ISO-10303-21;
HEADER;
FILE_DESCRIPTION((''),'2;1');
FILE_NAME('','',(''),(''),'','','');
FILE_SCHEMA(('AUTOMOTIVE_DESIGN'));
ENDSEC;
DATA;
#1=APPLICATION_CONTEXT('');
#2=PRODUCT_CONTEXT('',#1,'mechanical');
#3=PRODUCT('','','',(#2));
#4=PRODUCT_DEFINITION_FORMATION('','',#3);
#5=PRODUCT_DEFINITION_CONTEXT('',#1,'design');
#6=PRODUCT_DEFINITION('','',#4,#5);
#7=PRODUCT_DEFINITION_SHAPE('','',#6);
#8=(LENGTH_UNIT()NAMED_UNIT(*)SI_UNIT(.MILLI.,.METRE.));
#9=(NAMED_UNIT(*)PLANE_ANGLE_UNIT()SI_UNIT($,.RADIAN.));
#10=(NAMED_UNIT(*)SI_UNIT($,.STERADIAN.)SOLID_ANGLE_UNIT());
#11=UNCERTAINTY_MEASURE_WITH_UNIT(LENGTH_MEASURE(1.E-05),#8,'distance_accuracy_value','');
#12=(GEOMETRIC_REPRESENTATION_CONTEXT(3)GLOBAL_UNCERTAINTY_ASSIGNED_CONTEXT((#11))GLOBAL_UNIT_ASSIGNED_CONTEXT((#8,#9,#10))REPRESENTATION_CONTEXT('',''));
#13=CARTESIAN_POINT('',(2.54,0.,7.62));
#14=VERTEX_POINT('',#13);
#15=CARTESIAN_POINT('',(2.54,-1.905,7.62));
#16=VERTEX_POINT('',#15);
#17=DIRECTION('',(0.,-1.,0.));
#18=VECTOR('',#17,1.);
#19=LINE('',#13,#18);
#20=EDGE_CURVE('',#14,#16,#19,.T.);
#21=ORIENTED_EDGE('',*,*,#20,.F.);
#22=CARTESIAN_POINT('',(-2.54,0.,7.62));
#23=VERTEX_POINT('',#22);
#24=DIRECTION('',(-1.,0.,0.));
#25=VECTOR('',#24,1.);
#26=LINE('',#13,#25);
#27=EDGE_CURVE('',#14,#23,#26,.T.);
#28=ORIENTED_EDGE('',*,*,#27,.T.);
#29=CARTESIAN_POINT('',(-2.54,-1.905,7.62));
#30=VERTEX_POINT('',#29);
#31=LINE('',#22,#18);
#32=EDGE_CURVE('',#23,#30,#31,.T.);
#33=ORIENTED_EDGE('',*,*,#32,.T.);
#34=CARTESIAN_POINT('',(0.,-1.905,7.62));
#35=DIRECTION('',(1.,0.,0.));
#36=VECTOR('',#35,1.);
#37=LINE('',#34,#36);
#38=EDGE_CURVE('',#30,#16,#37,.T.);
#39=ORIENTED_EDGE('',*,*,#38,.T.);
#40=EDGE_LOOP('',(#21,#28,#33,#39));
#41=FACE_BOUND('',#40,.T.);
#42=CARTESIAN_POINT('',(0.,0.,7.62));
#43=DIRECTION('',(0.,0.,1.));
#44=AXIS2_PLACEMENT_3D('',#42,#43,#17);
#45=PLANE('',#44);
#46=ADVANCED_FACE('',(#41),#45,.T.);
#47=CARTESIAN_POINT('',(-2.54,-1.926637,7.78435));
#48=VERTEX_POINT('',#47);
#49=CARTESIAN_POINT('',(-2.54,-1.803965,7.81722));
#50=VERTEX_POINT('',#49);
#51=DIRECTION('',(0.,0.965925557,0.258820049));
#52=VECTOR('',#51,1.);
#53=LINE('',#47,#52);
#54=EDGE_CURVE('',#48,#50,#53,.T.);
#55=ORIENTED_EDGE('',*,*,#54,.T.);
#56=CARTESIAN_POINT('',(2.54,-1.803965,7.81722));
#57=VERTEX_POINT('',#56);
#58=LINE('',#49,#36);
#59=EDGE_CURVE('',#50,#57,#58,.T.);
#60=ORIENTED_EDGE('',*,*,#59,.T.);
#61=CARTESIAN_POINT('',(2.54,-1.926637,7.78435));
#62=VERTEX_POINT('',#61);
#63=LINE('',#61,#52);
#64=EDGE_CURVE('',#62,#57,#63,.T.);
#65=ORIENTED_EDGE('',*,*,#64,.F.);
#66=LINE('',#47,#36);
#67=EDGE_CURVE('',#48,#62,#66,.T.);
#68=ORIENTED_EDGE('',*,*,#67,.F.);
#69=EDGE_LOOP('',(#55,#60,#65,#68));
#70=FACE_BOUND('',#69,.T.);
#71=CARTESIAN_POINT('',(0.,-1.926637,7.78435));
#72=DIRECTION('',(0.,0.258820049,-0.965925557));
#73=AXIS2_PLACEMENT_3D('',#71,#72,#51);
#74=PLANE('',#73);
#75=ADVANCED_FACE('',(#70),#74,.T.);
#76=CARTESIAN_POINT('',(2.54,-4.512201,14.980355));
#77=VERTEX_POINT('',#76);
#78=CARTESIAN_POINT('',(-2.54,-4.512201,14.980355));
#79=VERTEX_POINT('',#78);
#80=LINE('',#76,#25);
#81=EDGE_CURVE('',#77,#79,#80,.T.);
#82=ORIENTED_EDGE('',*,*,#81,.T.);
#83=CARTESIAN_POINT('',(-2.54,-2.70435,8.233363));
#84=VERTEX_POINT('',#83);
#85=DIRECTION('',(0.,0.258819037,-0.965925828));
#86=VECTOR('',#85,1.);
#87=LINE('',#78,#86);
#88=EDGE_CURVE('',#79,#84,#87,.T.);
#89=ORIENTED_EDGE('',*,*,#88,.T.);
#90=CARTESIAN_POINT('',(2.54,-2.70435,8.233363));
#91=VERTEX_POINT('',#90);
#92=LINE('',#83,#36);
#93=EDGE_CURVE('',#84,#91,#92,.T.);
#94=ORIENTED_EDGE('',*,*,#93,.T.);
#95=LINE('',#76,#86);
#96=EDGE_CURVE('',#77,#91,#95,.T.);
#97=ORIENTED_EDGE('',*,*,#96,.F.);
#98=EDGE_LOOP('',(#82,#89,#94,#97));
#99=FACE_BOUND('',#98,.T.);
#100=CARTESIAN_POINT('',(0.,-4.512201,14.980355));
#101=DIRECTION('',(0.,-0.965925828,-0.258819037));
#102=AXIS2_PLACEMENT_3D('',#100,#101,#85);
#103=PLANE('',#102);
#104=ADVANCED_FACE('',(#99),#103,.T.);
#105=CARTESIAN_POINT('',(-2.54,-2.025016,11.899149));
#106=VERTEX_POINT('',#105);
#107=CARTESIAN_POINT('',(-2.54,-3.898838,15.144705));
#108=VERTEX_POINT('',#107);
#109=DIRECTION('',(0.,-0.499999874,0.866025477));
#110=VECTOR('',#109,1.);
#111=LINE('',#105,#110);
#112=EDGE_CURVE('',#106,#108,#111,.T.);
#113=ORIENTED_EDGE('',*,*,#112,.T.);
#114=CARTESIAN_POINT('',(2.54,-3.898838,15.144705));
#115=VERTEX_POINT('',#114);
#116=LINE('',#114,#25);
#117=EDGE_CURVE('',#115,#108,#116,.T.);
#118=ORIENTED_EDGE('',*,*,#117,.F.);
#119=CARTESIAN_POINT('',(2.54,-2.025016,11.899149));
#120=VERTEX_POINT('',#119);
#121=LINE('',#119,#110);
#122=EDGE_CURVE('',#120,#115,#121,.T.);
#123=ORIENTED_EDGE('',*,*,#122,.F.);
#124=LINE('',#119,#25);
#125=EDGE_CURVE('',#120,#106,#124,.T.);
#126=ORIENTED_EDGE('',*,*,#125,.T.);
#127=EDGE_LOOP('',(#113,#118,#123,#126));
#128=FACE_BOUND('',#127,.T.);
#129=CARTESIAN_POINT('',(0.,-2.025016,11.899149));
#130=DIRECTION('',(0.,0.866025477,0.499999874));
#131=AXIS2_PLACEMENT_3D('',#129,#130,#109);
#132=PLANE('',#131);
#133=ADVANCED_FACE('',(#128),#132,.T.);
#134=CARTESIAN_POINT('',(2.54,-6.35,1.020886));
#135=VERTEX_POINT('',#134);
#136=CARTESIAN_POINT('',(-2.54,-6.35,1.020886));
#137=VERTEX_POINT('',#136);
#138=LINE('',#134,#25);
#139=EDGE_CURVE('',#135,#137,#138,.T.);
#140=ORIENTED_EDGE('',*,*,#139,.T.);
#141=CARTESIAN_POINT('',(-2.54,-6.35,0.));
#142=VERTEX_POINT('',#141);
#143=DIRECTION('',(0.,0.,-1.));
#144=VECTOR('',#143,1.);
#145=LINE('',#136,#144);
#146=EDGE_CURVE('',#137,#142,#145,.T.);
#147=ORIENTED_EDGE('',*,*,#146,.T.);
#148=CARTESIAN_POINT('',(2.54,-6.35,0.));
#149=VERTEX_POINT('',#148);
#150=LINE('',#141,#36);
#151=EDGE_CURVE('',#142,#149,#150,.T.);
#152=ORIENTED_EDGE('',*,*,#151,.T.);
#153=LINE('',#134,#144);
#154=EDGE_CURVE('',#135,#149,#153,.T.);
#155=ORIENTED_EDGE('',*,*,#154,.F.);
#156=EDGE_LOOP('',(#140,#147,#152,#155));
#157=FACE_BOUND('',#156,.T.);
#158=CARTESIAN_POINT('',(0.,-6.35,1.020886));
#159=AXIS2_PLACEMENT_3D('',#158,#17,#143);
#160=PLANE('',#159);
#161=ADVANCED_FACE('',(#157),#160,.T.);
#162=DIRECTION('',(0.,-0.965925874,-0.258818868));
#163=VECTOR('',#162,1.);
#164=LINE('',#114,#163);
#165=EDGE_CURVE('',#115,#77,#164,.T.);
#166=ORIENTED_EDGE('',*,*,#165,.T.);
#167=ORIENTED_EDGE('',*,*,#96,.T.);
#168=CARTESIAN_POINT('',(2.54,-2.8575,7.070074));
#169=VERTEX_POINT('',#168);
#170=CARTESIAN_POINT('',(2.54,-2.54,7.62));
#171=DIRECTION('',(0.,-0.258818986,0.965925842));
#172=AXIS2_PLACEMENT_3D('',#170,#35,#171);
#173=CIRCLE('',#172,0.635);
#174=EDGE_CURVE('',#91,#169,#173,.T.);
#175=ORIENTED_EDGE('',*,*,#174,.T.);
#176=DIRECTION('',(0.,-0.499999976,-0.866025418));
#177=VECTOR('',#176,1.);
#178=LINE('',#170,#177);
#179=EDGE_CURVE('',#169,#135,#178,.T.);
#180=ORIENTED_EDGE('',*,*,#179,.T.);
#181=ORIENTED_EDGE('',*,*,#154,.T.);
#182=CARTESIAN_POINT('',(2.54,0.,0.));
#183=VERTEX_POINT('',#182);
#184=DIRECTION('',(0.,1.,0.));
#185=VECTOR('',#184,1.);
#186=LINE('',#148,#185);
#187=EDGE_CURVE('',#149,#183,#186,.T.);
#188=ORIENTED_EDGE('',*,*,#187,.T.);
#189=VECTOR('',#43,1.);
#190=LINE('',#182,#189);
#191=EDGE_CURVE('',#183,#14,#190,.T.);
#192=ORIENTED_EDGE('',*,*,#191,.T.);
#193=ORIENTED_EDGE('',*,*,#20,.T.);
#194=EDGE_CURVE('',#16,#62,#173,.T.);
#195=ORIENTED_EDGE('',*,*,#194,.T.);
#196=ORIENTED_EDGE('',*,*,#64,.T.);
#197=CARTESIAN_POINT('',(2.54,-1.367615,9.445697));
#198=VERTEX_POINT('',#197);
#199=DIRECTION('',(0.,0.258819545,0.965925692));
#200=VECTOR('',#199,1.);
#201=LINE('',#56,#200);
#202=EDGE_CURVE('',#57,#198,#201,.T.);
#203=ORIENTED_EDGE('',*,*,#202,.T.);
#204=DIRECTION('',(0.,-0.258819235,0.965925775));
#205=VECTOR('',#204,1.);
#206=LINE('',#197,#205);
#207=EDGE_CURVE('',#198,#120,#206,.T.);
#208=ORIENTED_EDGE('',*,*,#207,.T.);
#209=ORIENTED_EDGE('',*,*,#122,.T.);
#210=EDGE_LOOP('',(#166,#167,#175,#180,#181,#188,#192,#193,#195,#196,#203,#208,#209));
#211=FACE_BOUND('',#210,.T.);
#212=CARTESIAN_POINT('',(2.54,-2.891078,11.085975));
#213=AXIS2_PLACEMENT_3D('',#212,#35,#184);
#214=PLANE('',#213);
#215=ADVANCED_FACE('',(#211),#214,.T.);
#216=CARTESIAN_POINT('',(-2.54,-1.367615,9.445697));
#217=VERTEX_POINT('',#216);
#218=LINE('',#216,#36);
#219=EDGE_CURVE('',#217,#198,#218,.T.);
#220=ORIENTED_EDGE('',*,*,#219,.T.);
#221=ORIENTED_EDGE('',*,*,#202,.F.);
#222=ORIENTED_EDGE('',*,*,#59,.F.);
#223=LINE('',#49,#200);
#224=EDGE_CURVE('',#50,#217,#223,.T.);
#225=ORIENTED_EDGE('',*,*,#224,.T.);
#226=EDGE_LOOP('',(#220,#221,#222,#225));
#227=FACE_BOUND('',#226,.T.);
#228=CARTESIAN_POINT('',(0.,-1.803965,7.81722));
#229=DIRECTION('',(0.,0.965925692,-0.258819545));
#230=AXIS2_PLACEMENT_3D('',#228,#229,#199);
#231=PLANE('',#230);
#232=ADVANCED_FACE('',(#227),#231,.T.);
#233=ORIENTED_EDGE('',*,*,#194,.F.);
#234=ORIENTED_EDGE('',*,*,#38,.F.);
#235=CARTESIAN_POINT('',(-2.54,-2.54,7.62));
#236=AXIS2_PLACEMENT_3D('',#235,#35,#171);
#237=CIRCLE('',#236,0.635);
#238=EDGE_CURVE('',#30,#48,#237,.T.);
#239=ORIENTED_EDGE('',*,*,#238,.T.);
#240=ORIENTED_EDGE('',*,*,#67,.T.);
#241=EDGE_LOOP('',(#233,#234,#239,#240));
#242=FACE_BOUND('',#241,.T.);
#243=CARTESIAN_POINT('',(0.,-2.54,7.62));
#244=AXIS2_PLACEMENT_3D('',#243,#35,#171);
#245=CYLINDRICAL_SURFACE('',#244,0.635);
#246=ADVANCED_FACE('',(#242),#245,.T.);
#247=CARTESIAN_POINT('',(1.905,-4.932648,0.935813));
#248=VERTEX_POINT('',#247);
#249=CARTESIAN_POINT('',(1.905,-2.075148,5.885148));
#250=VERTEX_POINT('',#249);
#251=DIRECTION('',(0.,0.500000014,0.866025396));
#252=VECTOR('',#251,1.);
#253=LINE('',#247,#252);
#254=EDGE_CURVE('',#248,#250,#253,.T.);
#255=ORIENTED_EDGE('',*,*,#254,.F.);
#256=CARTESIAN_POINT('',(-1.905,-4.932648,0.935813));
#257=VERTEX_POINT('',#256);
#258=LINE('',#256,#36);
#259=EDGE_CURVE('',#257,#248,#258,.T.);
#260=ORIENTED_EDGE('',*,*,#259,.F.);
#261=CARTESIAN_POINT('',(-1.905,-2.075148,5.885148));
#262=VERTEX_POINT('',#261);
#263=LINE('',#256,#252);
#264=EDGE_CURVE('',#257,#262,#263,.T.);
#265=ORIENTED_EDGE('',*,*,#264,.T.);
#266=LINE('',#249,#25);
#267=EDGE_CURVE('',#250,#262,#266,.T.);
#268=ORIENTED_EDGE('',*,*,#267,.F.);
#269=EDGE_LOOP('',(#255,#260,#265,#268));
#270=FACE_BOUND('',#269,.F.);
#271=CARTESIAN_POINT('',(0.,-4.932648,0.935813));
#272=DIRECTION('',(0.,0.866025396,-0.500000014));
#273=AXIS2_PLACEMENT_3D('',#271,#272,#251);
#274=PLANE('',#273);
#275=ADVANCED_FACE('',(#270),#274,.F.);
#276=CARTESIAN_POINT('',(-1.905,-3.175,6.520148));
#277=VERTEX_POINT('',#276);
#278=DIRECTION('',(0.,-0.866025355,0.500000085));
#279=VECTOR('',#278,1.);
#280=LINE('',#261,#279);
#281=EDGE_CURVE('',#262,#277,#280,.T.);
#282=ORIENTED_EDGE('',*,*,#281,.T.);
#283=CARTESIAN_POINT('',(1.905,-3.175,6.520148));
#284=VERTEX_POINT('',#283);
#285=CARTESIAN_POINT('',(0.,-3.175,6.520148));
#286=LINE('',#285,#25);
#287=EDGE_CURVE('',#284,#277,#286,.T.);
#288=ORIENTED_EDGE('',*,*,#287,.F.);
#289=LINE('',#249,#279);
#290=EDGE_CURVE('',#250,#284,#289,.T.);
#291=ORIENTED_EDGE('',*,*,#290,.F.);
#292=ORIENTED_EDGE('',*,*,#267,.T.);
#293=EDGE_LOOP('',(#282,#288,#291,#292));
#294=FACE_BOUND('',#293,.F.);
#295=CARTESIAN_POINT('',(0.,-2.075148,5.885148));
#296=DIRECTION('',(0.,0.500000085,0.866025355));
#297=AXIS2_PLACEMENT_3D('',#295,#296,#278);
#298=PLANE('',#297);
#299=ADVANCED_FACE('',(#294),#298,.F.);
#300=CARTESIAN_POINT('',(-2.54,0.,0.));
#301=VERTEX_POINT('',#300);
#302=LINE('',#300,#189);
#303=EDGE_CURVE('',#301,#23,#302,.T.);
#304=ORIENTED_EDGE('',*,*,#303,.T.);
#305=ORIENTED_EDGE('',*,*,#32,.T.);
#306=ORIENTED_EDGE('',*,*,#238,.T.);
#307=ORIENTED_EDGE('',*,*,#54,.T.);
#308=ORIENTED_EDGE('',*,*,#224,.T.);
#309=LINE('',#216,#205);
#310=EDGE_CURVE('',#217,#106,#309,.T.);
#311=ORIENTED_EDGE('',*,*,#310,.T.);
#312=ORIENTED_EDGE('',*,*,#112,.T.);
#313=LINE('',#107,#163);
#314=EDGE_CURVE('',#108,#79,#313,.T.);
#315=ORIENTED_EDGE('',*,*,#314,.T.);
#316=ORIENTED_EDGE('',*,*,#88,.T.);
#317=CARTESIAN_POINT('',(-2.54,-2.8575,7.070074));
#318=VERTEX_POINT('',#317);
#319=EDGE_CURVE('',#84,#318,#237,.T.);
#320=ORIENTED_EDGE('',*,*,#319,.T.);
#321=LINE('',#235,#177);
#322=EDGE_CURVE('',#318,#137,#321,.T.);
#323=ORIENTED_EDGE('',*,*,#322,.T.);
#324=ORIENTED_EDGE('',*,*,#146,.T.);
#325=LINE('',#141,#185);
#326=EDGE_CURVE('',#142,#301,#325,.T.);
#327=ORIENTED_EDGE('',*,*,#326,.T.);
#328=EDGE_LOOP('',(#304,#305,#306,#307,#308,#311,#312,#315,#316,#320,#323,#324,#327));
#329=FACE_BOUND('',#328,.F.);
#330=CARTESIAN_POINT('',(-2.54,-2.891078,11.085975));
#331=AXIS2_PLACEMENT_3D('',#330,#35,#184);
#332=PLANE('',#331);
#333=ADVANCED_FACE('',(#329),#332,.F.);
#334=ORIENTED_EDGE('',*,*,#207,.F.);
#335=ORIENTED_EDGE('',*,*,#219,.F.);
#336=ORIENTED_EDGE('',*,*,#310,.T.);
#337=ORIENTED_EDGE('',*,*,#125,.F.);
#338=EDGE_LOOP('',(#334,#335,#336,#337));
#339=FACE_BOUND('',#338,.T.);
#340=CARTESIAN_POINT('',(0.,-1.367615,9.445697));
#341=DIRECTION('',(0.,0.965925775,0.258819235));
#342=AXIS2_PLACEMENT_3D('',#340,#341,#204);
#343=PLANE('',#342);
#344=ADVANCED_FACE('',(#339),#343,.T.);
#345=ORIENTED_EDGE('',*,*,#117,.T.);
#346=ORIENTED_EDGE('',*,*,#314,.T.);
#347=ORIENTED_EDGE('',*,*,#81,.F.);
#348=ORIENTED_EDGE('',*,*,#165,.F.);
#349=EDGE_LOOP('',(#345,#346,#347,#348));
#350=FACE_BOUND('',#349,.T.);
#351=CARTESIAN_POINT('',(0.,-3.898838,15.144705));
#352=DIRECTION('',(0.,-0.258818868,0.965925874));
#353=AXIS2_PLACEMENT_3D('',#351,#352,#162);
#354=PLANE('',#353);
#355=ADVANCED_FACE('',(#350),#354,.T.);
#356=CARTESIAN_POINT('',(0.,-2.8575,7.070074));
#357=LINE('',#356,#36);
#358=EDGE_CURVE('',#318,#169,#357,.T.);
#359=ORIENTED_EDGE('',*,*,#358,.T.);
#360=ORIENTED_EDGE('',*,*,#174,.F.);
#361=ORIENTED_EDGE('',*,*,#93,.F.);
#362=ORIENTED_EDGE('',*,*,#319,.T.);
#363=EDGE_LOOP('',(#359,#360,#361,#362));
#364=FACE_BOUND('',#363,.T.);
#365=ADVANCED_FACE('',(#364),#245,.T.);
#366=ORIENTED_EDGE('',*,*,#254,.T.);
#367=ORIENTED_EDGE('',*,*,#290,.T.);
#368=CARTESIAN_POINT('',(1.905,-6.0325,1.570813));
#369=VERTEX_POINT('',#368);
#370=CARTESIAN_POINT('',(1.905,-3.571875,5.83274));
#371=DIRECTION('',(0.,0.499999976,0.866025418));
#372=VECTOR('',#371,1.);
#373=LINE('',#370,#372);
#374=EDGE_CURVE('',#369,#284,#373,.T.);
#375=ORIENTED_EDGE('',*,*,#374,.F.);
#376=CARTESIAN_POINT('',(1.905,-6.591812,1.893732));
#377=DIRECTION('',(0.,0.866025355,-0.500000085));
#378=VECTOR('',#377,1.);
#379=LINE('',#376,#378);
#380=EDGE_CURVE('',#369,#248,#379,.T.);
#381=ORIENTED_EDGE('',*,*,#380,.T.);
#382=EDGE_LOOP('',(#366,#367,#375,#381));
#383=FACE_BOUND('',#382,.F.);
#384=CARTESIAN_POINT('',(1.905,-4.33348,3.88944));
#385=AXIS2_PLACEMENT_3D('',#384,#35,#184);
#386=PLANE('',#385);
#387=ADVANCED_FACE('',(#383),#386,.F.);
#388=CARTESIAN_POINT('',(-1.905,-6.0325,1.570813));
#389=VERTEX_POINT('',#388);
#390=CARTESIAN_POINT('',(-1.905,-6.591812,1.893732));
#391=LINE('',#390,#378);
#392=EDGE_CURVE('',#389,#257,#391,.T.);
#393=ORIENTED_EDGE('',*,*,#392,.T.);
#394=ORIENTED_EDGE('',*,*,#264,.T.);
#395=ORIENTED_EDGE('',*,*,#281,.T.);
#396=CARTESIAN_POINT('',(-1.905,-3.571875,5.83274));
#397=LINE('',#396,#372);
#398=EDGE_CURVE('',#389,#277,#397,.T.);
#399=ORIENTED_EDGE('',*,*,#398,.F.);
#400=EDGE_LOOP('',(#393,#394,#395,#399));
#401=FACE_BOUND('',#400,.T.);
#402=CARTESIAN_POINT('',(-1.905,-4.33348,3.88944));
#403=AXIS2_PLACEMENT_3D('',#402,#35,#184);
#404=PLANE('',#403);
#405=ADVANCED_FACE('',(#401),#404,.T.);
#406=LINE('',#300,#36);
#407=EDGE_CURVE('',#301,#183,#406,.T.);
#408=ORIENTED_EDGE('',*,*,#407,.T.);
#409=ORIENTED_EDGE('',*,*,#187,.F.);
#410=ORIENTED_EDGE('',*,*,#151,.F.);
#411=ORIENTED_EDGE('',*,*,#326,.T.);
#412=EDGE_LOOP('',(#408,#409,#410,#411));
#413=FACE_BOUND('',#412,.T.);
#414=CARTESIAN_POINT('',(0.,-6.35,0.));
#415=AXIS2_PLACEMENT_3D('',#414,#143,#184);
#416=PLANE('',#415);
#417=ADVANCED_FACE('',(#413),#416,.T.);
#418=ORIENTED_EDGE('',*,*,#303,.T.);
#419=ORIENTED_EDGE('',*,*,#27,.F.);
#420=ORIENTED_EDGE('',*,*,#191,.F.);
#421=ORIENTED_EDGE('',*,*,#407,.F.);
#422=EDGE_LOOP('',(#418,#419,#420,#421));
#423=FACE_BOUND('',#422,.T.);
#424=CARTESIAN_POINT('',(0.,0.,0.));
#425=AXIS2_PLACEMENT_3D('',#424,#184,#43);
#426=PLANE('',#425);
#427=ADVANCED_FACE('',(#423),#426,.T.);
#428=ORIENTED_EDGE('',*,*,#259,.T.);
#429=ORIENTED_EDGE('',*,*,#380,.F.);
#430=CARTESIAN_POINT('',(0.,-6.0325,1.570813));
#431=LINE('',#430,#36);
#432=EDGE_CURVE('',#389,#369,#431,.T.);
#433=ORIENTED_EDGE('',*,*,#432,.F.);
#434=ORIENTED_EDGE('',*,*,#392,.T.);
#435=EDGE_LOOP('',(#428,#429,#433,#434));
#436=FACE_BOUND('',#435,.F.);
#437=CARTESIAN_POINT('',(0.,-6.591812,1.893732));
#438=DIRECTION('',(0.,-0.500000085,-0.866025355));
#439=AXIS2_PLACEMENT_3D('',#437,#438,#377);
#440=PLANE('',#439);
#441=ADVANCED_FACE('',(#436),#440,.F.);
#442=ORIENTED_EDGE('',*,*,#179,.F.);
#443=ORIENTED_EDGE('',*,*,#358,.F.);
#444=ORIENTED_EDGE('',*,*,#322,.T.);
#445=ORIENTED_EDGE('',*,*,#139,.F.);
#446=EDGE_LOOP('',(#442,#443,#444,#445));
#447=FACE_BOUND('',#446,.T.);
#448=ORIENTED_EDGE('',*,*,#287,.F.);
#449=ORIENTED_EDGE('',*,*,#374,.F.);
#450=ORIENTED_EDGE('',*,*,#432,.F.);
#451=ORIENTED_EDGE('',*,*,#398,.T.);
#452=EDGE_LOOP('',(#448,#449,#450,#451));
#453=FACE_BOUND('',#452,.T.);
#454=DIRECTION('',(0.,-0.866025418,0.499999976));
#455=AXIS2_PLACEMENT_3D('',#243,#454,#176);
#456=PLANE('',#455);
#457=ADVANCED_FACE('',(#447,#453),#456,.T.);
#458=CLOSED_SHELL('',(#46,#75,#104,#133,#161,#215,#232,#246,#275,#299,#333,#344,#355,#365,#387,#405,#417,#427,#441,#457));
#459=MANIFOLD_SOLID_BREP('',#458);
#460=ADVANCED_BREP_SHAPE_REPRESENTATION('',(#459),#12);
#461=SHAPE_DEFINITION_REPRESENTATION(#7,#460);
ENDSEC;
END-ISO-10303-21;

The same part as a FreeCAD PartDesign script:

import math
import FreeCAD as App
import Part
import Sketcher
from FreeCAD import Vector
Q = App.Units.Quantity

doc = App.newDocument("Part")
body = doc.addObject("PartDesign::Body", "Body")

sketch1 = body.newObject("Sketcher::SketchObject", "Sketch")
sketch1.AttachmentSupport = (doc.getObject("YZ_Plane"), [""])
sketch1.MapMode = "FlatFace"
sketch1.addGeometry([
    Part.LineSegment(Vector(-6.3, 1, 0), Vector(-6.3, 0, 0)),
    Part.LineSegment(Vector(-6.3, 0, 0), Vector(0, 0, 0)),
    Part.LineSegment(Vector(0, 0, 0), Vector(0, 7.6, 0)),
    Part.LineSegment(Vector(0, 7.6, 0), Vector(-2.5, 7.6, 0)),
    Part.LineSegment(Vector(-2.5, 7.6, 0), Vector(-6.3, 1, 0)),
], False)
sketch1.addConstraint([
    Sketcher.Constraint("Coincident", 0, 2, 1, 1),
    Sketcher.Constraint("Coincident", 1, 2, 2, 1),
    Sketcher.Constraint("Coincident", 2, 2, 3, 1),
    Sketcher.Constraint("Coincident", 3, 2, 4, 1),
    Sketcher.Constraint("Coincident", 4, 2, 0, 1),
    Sketcher.Constraint("Vertical", 0),
    Sketcher.Constraint("Horizontal", 1),
    Sketcher.Constraint("Vertical", 2),
    Sketcher.Constraint("Horizontal", 3),
    Sketcher.Constraint("Coincident", 1, 2, -1, 1),
    Sketcher.Constraint("DistanceX", 3, 2, 3, 1, Q("0.1 in")),
    Sketcher.Constraint("DistanceY", 2, 1, 2, 2, Q("0.3 in")),
    Sketcher.Constraint("Angle", 4, Q("-119.999998 deg")),
    Sketcher.Constraint("Distance", 4, Q("0.3 in")),
])
pad1 = body.newObject("PartDesign::Pad", "Pad")
pad1.Profile = sketch1
pad1.Length = Q("0.2 in")
pad1.Midplane = True

sketch2 = body.newObject("Sketcher::SketchObject", "Sketch001")
sketch2.AttachmentSupport = (doc.getObject("YZ_Plane"), [""])
sketch2.MapMode = "FlatFace"
sketch2.addGeometry([
    Part.LineSegment(Vector(-4.51, 14.98, 0), Vector(-2.7, 8.23, 0)),
    Part.ArcOfCircle(Part.Circle(Vector(-2.54, 7.62, 0), Vector(0, 0, 1), 0.63), math.radians(105), math.radians(375)),
    Part.LineSegment(Vector(-1.93, 7.78, 0), Vector(-1.8, 7.82, 0)),
    Part.LineSegment(Vector(-1.8, 7.82, 0), Vector(-1.37, 9.45, 0)),
    Part.LineSegment(Vector(-1.37, 9.45, 0), Vector(-2.03, 11.9, 0)),
    Part.LineSegment(Vector(-2.03, 11.9, 0), Vector(-3.9, 15.14, 0)),
    Part.LineSegment(Vector(-3.9, 15.14, 0), Vector(-4.51, 14.98, 0)),
], False)
sketch2.addConstraint([
    Sketcher.Constraint("Coincident", 0, 2, 1, 1),
    Sketcher.Constraint("Coincident", 1, 2, 2, 1),
    Sketcher.Constraint("Coincident", 2, 2, 3, 1),
    Sketcher.Constraint("Coincident", 3, 2, 4, 1),
    Sketcher.Constraint("Coincident", 4, 2, 5, 1),
    Sketcher.Constraint("Coincident", 5, 2, 6, 1),
    Sketcher.Constraint("Coincident", 6, 2, 0, 1),
    Sketcher.Constraint("Perpendicular", 0, 2),
    Sketcher.Constraint("Perpendicular", 2, 4),
    Sketcher.Constraint("Perpendicular", 4, 6),
    Sketcher.Constraint("Angle", 0, Q("-75 deg")),
    Sketcher.Constraint("Angle", 5, Q("119.999992 deg")),
    Sketcher.Constraint("Radius", 1, Q("0.025 in")),
    Sketcher.Constraint("Distance", 4, Q("0.1 in")),
    Sketcher.Constraint("DistanceX", 1, 3, -1, 1, Q("0.1 in")),
    Sketcher.Constraint("DistanceY", -1, 1, 1, 3, Q("0.3 in")),
    Sketcher.Constraint("Distance", 0, Q("0.275 in")),
    Sketcher.Constraint("Distance", 2, Q("0.005 in")),
    Sketcher.Constraint("Distance", 6, Q("0.025 in")),
    Sketcher.Constraint("DistanceY", 1, 2, 4, 2, Q("0.162 in")),
    Sketcher.Constraint("DistanceY", 3, 2, 6, 2, Q("0.2178999 in")),
    Sketcher.Constraint("DistanceX", 6, 2, -1, 1, Q("4.512201 mm")),
])
pad2 = body.newObject("PartDesign::Pad", "Pad001")
pad2.Profile = sketch2
pad2.Length = Q("0.2 in")
pad2.Midplane = True

sketch3 = body.newObject("Sketcher::SketchObject", "Sketch002")
sketch3.AttachmentSupport = (doc.getObject("YZ_Plane"), [""])
sketch3.MapMode = "FlatFace"
sketch3.addGeometry([
    Part.LineSegment(Vector(-3.7, 6.8, 0), Vector(-6.6, 1.9, 0)),
    Part.LineSegment(Vector(-6.6, 1.9, 0), Vector(-4.9, 0.9, 0)),
    Part.LineSegment(Vector(-4.9, 0.9, 0), Vector(-2.1, 5.9, 0)),
    Part.LineSegment(Vector(-2.1, 5.9, 0), Vector(-3.7, 6.8, 0)),
], False)
sketch3.addConstraint([
    Sketcher.Constraint("Coincident", 0, 2, 1, 1),
    Sketcher.Constraint("Coincident", 1, 2, 2, 1),
    Sketcher.Constraint("Coincident", 2, 2, 3, 1),
    Sketcher.Constraint("Coincident", 3, 2, 0, 1),
    Sketcher.Constraint("Perpendicular", 0, 1),
    Sketcher.Constraint("Perpendicular", 1, 2),
    Sketcher.Constraint("Perpendicular", 2, 3),
    Sketcher.Constraint("Angle", 0, Q("-120.000001 deg")),
    Sketcher.Constraint("Distance", 0, Q("0.225 in")),
    Sketcher.Constraint("DistanceX", 1, 2, -1, 1, Q("4.932648 mm")),
    Sketcher.Constraint("DistanceY", 1, 2, 0, 2, Q("0.957919 mm")),
    Sketcher.Constraint("DistanceY", -1, 1, 0, 2, Q("1.893732 mm")),
])
pocket1 = body.newObject("PartDesign::Pocket", "Pocket")
pocket1.Profile = sketch3
pocket1.Length = Q("0.15 in")
pocket1.Midplane = True

doc.recompute()
